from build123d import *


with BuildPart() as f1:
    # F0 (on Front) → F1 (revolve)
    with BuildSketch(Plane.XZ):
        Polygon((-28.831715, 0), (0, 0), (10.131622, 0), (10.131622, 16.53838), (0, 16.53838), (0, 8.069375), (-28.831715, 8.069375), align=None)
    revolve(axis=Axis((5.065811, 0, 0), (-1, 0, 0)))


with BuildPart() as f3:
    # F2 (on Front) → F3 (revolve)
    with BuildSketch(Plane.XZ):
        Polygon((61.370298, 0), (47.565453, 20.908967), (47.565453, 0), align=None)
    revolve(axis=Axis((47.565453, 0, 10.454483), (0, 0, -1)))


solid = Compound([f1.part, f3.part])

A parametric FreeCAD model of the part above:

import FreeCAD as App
import Part
import Sketcher

doc = App.newDocument("Part")
body = doc.addObject("PartDesign::Body", "Body")

sketch1 = doc.addObject("Sketcher::SketchObject", "Sketch")
body.addObject(sketch1)
sketch1.AttachmentSupport = (doc.XZ_Plane, [""])
sketch1.MapMode = "FlatFace"
sketch1.addGeometry([
    Part.LineSegment(App.Vector(-29, 0, 0), App.Vector(10, 0, 0)),
    Part.LineSegment(App.Vector(10, 0, 0), App.Vector(10, 17, 0)),
    Part.LineSegment(App.Vector(10, 17, 0), App.Vector(0, 17, 0)),
    Part.LineSegment(App.Vector(0, 17, 0), App.Vector(0, 8, 0)),
    Part.LineSegment(App.Vector(0, 8, 0), App.Vector(-29, 8, 0)),
    Part.LineSegment(App.Vector(-29, 8, 0), App.Vector(-29, 0, 0)),
], False)
sketch1.addConstraint([
    Sketcher.Constraint("Coincident", 0, 2, 1, 1),
    Sketcher.Constraint("Coincident", 1, 2, 2, 1),
    Sketcher.Constraint("Coincident", 2, 2, 3, 1),
    Sketcher.Constraint("Coincident", 3, 2, 4, 1),
    Sketcher.Constraint("Coincident", 4, 2, 5, 1),
    Sketcher.Constraint("Coincident", 5, 2, 0, 1),
    Sketcher.Constraint("Horizontal", 0),
    Sketcher.Constraint("Vertical", 1),
    Sketcher.Constraint("Horizontal", 2),
    Sketcher.Constraint("Vertical", 3),
    Sketcher.Constraint("Horizontal", 4),
    Sketcher.Constraint("Vertical", 5),
    Sketcher.Constraint("PointOnObject", 0, 2, -1),
    Sketcher.Constraint("PointOnObject", 2, 2, -2),
    Sketcher.Constraint("DistanceY", 1, 1, 1, 2, 16.53838),
    Sketcher.Constraint("DistanceX", 0, 1, 0, 2, 38.963337),
    Sketcher.Constraint("DistanceX", 2, 2, 2, 1, 10.131622),
    Sketcher.Constraint("DistanceY", 3, 2, 3, 1, 8.469005),
])
revolution = doc.addObject("PartDesign::Revolution", "Revolution")
body.addObject(revolution)
revolution.Profile = sketch1
revolution.ReferenceAxis = (sketch1, ["H_Axis"])
revolution.Angle = 360
body2 = doc.addObject("PartDesign::Body", "Body001")

sketch2 = doc.addObject("Sketcher::SketchObject", "Sketch001")
body2.addObject(sketch2)
sketch2.AttachmentSupport = (doc.getObject("XZ_Plane001"), [""])
sketch2.MapMode = "FlatFace"
sketch2.addGeometry([
    Part.LineSegment(App.Vector(61, 0, 0), App.Vector(48, 21, 0)),
    Part.LineSegment(App.Vector(48, 21, 0), App.Vector(48, 0, 0)),
    Part.LineSegment(App.Vector(48, 0, 0), App.Vector(61, 0, 0)),
], False)
sketch2.addGeometry(Part.LineSegment(App.Vector(48, 21, 0), App.Vector(48, 0, 0)), True)
sketch2.addConstraint([
    Sketcher.Constraint("Coincident", 0, 2, 1, 1),
    Sketcher.Constraint("Coincident", 1, 2, 2, 1),
    Sketcher.Constraint("Coincident", 2, 2, 0, 1),
    Sketcher.Constraint("Vertical", 1),
    Sketcher.Constraint("Horizontal", 2),
    Sketcher.Constraint("Vertical", 3),
    Sketcher.Constraint("Coincident", 3, 1, 0, 2),
    Sketcher.Constraint("PointOnObject", 1, 2, -1),
    Sketcher.Constraint("PointOnObject", 3, 2, -1),
    Sketcher.Constraint("DistanceX", 2, 1, 2, 2, 13.804845),
    Sketcher.Constraint("DistanceY", 1, 2, 1, 1, 20.908967),
    Sketcher.Constraint("DistanceX", -1, 1, 0, 2, 47.565453),
])
revolution2 = doc.addObject("PartDesign::Revolution", "Revolution001")
body2.addObject(revolution2)
revolution2.Profile = sketch2
revolution2.ReferenceAxis = (sketch2, ["Axis0"])
revolution2.Angle = 360

doc.recompute()
